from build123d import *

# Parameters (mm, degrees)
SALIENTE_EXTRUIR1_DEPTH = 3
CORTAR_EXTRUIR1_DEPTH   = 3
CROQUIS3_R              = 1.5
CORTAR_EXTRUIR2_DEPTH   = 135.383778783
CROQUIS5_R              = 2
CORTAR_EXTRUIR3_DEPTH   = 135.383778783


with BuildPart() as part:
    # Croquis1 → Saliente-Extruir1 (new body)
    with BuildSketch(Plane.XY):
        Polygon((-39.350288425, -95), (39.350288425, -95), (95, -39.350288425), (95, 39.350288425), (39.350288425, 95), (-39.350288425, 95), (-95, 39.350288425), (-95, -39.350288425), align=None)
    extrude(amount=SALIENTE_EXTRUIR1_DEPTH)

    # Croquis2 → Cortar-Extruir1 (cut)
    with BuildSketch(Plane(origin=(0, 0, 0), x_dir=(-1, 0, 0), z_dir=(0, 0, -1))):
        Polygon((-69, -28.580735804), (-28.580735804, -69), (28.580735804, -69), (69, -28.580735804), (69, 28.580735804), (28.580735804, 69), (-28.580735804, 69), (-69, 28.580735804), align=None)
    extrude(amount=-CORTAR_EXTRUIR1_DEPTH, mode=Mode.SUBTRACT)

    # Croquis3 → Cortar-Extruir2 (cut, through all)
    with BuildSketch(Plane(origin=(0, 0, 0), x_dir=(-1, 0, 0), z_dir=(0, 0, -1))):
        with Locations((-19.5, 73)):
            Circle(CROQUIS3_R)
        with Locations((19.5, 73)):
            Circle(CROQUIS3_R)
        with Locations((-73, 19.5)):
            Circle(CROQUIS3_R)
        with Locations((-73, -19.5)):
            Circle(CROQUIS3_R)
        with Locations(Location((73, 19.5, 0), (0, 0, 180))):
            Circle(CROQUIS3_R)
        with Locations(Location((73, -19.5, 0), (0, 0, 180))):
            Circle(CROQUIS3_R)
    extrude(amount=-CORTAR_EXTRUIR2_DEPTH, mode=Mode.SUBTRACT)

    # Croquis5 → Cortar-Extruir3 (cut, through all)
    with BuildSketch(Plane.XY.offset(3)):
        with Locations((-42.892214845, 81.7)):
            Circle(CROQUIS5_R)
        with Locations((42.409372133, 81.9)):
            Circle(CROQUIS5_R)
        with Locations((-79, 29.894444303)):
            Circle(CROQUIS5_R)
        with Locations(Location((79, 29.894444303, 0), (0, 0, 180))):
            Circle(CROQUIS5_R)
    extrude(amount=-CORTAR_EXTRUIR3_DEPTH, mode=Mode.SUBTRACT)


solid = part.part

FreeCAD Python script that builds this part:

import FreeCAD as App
import Part
import Sketcher

doc = App.newDocument("Part")
body = doc.addObject("PartDesign::Body", "Body")

sketch1 = body.newObject("Sketcher::SketchObject", "Sketch")
sketch1.AttachmentSupport = (doc.getObject("XY_Plane"), [""])
sketch1.MapMode = "FlatFace"
sketch1.addGeometry([
    Part.LineSegment(App.Vector(-39, -95, 0), App.Vector(39, -95, 0)),
    Part.LineSegment(App.Vector(39, -95, 0), App.Vector(95, -39, 0)),
    Part.LineSegment(App.Vector(95, -39, 0), App.Vector(95, 39, 0)),
    Part.LineSegment(App.Vector(95, 39, 0), App.Vector(39, 95, 0)),
    Part.LineSegment(App.Vector(39, 95, 0), App.Vector(-39, 95, 0)),
    Part.LineSegment(App.Vector(-39, 95, 0), App.Vector(-95, 39, 0)),
    Part.LineSegment(App.Vector(-95, 39, 0), App.Vector(-95, -39, 0)),
    Part.LineSegment(App.Vector(-95, -39, 0), App.Vector(-39, -95, 0)),
], False)
sketch1.addConstraint([
    Sketcher.Constraint("Coincident", 0, 2, 1, 1),
    Sketcher.Constraint("Coincident", 1, 2, 2, 1),
    Sketcher.Constraint("Coincident", 2, 2, 3, 1),
    Sketcher.Constraint("Coincident", 3, 2, 4, 1),
    Sketcher.Constraint("Coincident", 4, 2, 5, 1),
    Sketcher.Constraint("Coincident", 5, 2, 6, 1),
    Sketcher.Constraint("Coincident", 6, 2, 7, 1),
    Sketcher.Constraint("Coincident", 7, 2, 0, 1),
    Sketcher.Constraint("Horizontal", 0),
    Sketcher.Constraint("Vertical", 2),
    Sketcher.Constraint("Horizontal", 4),
    Sketcher.Constraint("Vertical", 6),
    Sketcher.Constraint("Symmetric", 0, 2, 4, 2, -1, 1),
    Sketcher.Constraint("Symmetric", 1, 2, 5, 2, -1, 1),
    Sketcher.Constraint("Perpendicular", 1, 3),
    Sketcher.Constraint("Perpendicular", 5, 7),
    Sketcher.Constraint("Horizontal", 2, 2, 5, 2),
    Sketcher.Constraint("Horizontal", 1, 2, 6, 2),
    Sketcher.Constraint("Vertical", 0, 2, 3, 2),
    Sketcher.Constraint("Equal", 4, 2),
    Sketcher.Constraint("DistanceY", 0, 2, -1, 1, 95.0),
    Sketcher.Constraint("DistanceX", 0, 1, 0, 2, 78.700577),
])
pad1 = body.newObject("PartDesign::Pad", "Pad")
pad1.Profile = sketch1
pad1.Length = 3

sketch2 = body.newObject("Sketcher::SketchObject", "Sketch001")
sketch2.AttachmentSupport = (doc.getObject("XY_Plane"), [""])
sketch2.MapMode = "FlatFace"
sketch2.addGeometry([
    Part.LineSegment(App.Vector(69, -29, 0), App.Vector(29, -69, 0)),
    Part.LineSegment(App.Vector(29, -69, 0), App.Vector(-29, -69, 0)),
    Part.LineSegment(App.Vector(-29, -69, 0), App.Vector(-69, -29, 0)),
    Part.LineSegment(App.Vector(-69, -29, 0), App.Vector(-69, 29, 0)),
    Part.LineSegment(App.Vector(-69, 29, 0), App.Vector(-29, 69, 0)),
    Part.LineSegment(App.Vector(-29, 69, 0), App.Vector(29, 69, 0)),
    Part.LineSegment(App.Vector(29, 69, 0), App.Vector(69, 29, 0)),
    Part.LineSegment(App.Vector(69, 29, 0), App.Vector(69, -29, 0)),
], False)
sketch2.addConstraint([
    Sketcher.Constraint("Coincident", 0, 2, 1, 1),
    Sketcher.Constraint("Coincident", 1, 2, 2, 1),
    Sketcher.Constraint("Coincident", 2, 2, 3, 1),
    Sketcher.Constraint("Coincident", 3, 2, 4, 1),
    Sketcher.Constraint("Coincident", 4, 2, 5, 1),
    Sketcher.Constraint("Coincident", 5, 2, 6, 1),
    Sketcher.Constraint("Coincident", 6, 2, 7, 1),
    Sketcher.Constraint("Coincident", 7, 2, 0, 1),
    Sketcher.Constraint("Horizontal", 1),
    Sketcher.Constraint("Vertical", 3),
    Sketcher.Constraint("Horizontal", 5),
    Sketcher.Constraint("Vertical", 7),
    Sketcher.Constraint("Symmetric", 0, 2, 4, 2, -1, 1),
    Sketcher.Constraint("Symmetric", 2, 2, 6, 2, -1, 1),
    Sketcher.Constraint("Perpendicular", 0, 2),
    Sketcher.Constraint("Perpendicular", 2, 4),
    Sketcher.Constraint("Perpendicular", 4, 6),
    Sketcher.Constraint("Horizontal", 3, 2, 6, 2),
    Sketcher.Constraint("Vertical", 1, 2, 4, 2),
    Sketcher.Constraint("Equal", 5, 3),
    Sketcher.Constraint("DistanceY", 0, 2, -1, 1, 69.0),
    Sketcher.Constraint("DistanceX", 1, 2, 1, 1, 57.161472),
])
pocket1 = body.newObject("PartDesign::Pocket", "Pocket")
pocket1.Profile = sketch2
pocket1.Length = 3
pocket1.Reversed = True

sketch3 = body.newObject("Sketcher::SketchObject", "Sketch002")
sketch3.AttachmentSupport = (doc.getObject("XY_Plane"), [""])
sketch3.MapMode = "FlatFace"
sketch3.addGeometry([
    Part.Circle(App.Vector(19.5, 73, 0), App.Vector(0, 0, 1), 1.5),
    Part.Circle(App.Vector(-19.5, 73, 0), App.Vector(0, 0, 1), 1.5),
    Part.Circle(App.Vector(73, 19.5, 0), App.Vector(0, 0, 1), 1.5),
    Part.Circle(App.Vector(73, -19.5, 0), App.Vector(0, 0, 1), 1.5),
    Part.Circle(App.Vector(-73, 19.5, 0), App.Vector(0, 0, 1), 1.5),
    Part.Circle(App.Vector(-73, -19.5, 0), App.Vector(0, 0, 1), 1.5),
], False)
sketch3.addConstraint([
    Sketcher.Constraint("Equal", 0, 1),
    Sketcher.Constraint("Equal", 1, 2),
    Sketcher.Constraint("Equal", 2, 3),
    Sketcher.Constraint("Equal", 3, 4),
    Sketcher.Constraint("Equal", 4, 5),
    Sketcher.Constraint("Symmetric", 3, 3, 4, 3, -1, 1),
    Sketcher.Constraint("Symmetric", 2, 3, 5, 3, -1, 1),
    Sketcher.Constraint("Symmetric", 0, 3, 1, 3, -2),
    Sketcher.Constraint("Symmetric", 2, 3, 4, 3, -2),
    Sketcher.Constraint("Diameter", 0, 3.0),
    Sketcher.Constraint("DistanceY", -1, 1, 0, 3, 73.0),
    Sketcher.Constraint("DistanceX", -1, 1, 2, 3, 73.0),
    Sketcher.Constraint("DistanceX", 1, 3, 0, 3, 39.0),
    Sketcher.Constraint("DistanceY", 3, 3, 2, 3, 39.0),
])
pocket2 = body.newObject("PartDesign::Pocket", "Pocket001")
pocket2.Profile = sketch3
pocket2.Type = "ThroughAll"
pocket2.Reversed = True

sketch4 = body.newObject("Sketcher::SketchObject", "Sketch003")
sketch4.AttachmentSupport = (doc.getObject("XY_Plane"), [""])
sketch4.MapMode = "FlatFace"
sketch4.AttachmentOffset = App.Placement(App.Vector(0, 0, 3), App.Rotation())
sketch4.addGeometry([
    Part.Circle(App.Vector(-42.9, 81.7, 0), App.Vector(0, 0, 1), 2),
    Part.Circle(App.Vector(42.4, 81.9, 0), App.Vector(0, 0, 1), 2),
    Part.Circle(App.Vector(-79, 29.9, 0), App.Vector(0, 0, 1), 2),
    Part.Circle(App.Vector(79, 29.9, 0), App.Vector(0, 0, 1), 2),
], False)
sketch4.addConstraint([
    Sketcher.Constraint("Equal", 0, 1),
    Sketcher.Constraint("Equal", 1, 2),
    Sketcher.Constraint("Equal", 2, 3),
    Sketcher.Constraint("Symmetric", 2, 3, 3, 3, -2),
    Sketcher.Constraint("Diameter", 0, 4.0),
    Sketcher.Constraint("DistanceX", 2, 3, -1, 1, 79.0),
    Sketcher.Constraint("DistanceY", -1, 1, 0, 3, 81.7),
    Sketcher.Constraint("DistanceY", -1, 1, 1, 3, 81.9),
    Sketcher.Constraint("DistanceX", 0, 3, -1, 1, 42.892215),
    Sketcher.Constraint("DistanceX", -1, 1, 1, 3, 42.409372),
    Sketcher.Constraint("DistanceY", -1, 1, 2, 3, 29.894444),
])
pocket3 = body.newObject("PartDesign::Pocket", "Pocket002")
pocket3.Profile = sketch4
pocket3.Type = "ThroughAll"

doc.recompute()
